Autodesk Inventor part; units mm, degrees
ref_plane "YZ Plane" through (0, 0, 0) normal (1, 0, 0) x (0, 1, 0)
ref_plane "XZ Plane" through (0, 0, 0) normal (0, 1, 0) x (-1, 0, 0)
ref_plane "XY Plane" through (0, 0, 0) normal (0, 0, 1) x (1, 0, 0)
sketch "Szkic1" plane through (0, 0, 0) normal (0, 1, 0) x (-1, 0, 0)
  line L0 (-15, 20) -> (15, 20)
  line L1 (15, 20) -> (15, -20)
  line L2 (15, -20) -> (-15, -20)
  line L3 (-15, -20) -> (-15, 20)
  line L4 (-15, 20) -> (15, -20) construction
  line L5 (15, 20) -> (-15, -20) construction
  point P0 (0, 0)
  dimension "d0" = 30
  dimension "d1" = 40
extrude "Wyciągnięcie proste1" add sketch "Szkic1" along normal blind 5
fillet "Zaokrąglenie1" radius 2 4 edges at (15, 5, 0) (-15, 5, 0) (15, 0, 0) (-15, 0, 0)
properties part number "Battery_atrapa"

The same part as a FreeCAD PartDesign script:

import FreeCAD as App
import Part
import Sketcher

V = App.Vector


def edges_at(feature, points):
    """Names of the edges that pass closest to the given points."""
    edges = feature.Shape.Edges
    near = lambda p: min(range(len(edges)), key=lambda i: edges[i].distToShape(Part.Vertex(*p))[0])
    return sorted({f"Edge{near(p) + 1}" for p in points})


def add_polygon(sketch, points):
    """Adds a closed chain of lines whose ends are joined by coincident constraints."""
    first, n = sketch.GeometryCount, len(points)
    for a, b in zip(points, points[1:] + points[:1]):
        sketch.addGeometry(Part.LineSegment(App.Vector(*a, 0), App.Vector(*b, 0)), False)
    for i in range(n):
        sketch.addConstraint(Sketcher.Constraint("Coincident", first + i, 2, first + (i + 1) % n, 1))

doc = App.newDocument("Part")
body = doc.addObject("PartDesign::Body", "Body")

# Sketch on XZ plane
sketch1 = doc.addObject("Sketcher::SketchObject", "Sketch")
body.addObject(sketch1)
sketch1.AttachmentSupport = (doc.XZ_Plane, [""])
sketch1.MapMode = "FlatFace"
add_polygon(sketch1, [(-15, 20), (15, 20), (15, -20), (-15, -20)])  # lines 0-3
sketch1.addConstraint([
    Sketcher.Constraint("Horizontal", 0),
    Sketcher.Constraint("Vertical", 1),
    Sketcher.Constraint("Horizontal", 2),
    Sketcher.Constraint("Vertical", 3),
    Sketcher.Constraint("Symmetric", 0, 2, 2, 2, -1, 1),
    Sketcher.Constraint("DistanceX", 0, 1, 0, 2, 30.0),
    Sketcher.Constraint("DistanceY", 1, 2, 1, 1, 40.0),
])
pad1 = doc.addObject("PartDesign::Pad", "Pad")
body.addObject(pad1)
pad1.Profile = sketch1
pad1.Length = 5
pad1.Reversed = True
doc.recompute()

fillet = doc.addObject("PartDesign::Fillet", "Fillet")
body.addObject(fillet)
fillet.Base = (pad1, edges_at(pad1, [
    (15, 5, 0),
    (-15, 5, 0),
    (15, 0, 0),
    (-15, 0, 0),
]))
fillet.Radius = 2

doc.recompute()
